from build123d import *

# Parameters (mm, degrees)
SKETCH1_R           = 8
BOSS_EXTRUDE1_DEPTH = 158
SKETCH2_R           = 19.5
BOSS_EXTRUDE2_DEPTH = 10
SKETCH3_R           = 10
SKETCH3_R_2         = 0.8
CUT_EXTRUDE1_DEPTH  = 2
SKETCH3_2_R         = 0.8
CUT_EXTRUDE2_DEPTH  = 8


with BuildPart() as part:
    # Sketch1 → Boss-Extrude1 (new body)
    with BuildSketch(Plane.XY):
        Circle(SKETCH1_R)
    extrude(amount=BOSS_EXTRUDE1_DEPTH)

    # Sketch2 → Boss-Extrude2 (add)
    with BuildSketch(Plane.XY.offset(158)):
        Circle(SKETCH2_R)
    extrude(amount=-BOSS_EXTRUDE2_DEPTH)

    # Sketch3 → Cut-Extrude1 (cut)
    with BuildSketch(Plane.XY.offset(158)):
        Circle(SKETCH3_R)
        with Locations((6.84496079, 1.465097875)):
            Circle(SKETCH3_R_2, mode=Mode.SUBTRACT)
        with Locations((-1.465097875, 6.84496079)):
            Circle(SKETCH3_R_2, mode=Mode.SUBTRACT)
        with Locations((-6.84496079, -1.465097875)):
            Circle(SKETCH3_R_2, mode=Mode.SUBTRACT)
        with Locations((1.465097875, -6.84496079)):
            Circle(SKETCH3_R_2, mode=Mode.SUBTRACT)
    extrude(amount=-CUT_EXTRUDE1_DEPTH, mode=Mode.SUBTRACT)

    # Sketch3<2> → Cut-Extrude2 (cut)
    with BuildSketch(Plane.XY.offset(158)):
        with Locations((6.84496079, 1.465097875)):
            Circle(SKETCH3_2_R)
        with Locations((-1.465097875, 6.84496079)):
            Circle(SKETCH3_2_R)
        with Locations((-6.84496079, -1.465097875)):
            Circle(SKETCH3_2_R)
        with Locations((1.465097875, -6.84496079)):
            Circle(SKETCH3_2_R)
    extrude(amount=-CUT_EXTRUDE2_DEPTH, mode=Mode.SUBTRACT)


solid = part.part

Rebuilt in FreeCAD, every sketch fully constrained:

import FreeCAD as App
import Part
import Sketcher

V = App.Vector

doc = App.newDocument("Part")
params = doc.addObject("Spreadsheet::Sheet", "Params")
for row, (alias, value) in enumerate([
    ("sketch1_diameter", "16 mm"),
    ("pad1_length", "158 mm"),
    ("sketch2_diameter", "39 mm"),
    ("pad2_length", "10 mm"),
    ("sketch3_diameter", "20 mm"),
    ("sketch3_diameter2", "1.6 mm"),
    ("pocket1_length", "2 mm"),
    ("sketch4_diameter", "1.6 mm"),
    ("pocket2_length", "8 mm"),
], start=1):
    params.set(f"A{row}", alias)
    params.set(f"B{row}", "=" + value)
    params.setAlias(f"B{row}", alias)

body = doc.addObject("PartDesign::Body", "Body")

# Sketch on XY plane
sketch1 = body.newObject("Sketcher::SketchObject", "Sketch")
sketch1.AttachmentSupport = (doc.getObject("XY_Plane"), [""])
sketch1.MapMode = "FlatFace"
sketch1.addGeometry(Part.Circle(V(0, 0, 0), V(0, 0, 1), 8), False)
sketch1.addConstraint([
    Sketcher.Constraint("Coincident", 0, 3, -1, 1),
    Sketcher.Constraint("Diameter", 0, 16.0),
])
sketch1.setExpression("Constraints[1]", "Params.sketch1_diameter")
pad1 = body.newObject("PartDesign::Pad", "Pad")
pad1.Profile = sketch1
pad1.setExpression("Length", "Params.pad1_length")

# Sketch on XY plane
sketch2 = body.newObject("Sketcher::SketchObject", "Sketch001")
sketch2.AttachmentSupport = (doc.getObject("XY_Plane"), [""])
sketch2.MapMode = "FlatFace"
sketch2.AttachmentOffset = App.Placement(V(0, 0, 158), App.Rotation())
sketch2.addGeometry(Part.Circle(V(0, 0, 0), V(0, 0, 1), 20), False)
sketch2.addConstraint([
    Sketcher.Constraint("Coincident", 0, 3, -1, 1),
    Sketcher.Constraint("Diameter", 0, 39.0),
])
sketch2.setExpression("Constraints[1]", "Params.sketch2_diameter")
pad2 = body.newObject("PartDesign::Pad", "Pad001")
pad2.Profile = sketch2
pad2.setExpression("Length", "Params.pad2_length")
pad2.Reversed = True

# Sketch on XY plane
sketch3 = body.newObject("Sketcher::SketchObject", "Sketch002")
sketch3.AttachmentSupport = (doc.getObject("XY_Plane"), [""])
sketch3.MapMode = "FlatFace"
sketch3.AttachmentOffset = App.Placement(V(0, 0, 158), App.Rotation())
sketch3.addGeometry([
    Part.Circle(V(0, 0, 0), V(0, 0, 1), 10),  # 0
    Part.Circle(V(-6.8, -1.5, 0), V(0, 0, 1), 0.8),  # 1
    Part.Circle(V(1.5, -6.8, 0), V(0, 0, 1), 0.8),  # 2
    Part.Circle(V(-1.5, 6.8, 0), V(0, 0, 1), 0.8),  # 3
    Part.Circle(V(6.8, 1.5, 0), V(0, 0, 1), 0.8),  # 4
], False)
sketch3.addConstraint([
    Sketcher.Constraint("Coincident", 0, 3, -1, 1),
    Sketcher.Constraint("Equal", 1, 2),
    Sketcher.Constraint("Equal", 2, 3),
    Sketcher.Constraint("Equal", 3, 4),
    Sketcher.Constraint("Symmetric", 2, 3, 3, 3, -1, 1),
    Sketcher.Constraint("Symmetric", 1, 3, 4, 3, -1, 1),
    Sketcher.Constraint("Diameter", 0, 20.0),
    Sketcher.Constraint("Diameter", 1, 1.6),
    Sketcher.Constraint("DistanceX", 1, 3, -1, 1, 6.844961),
    Sketcher.Constraint("DistanceY", 2, 3, -1, 1, 6.844961),
    Sketcher.Constraint("DistanceX", 1, 3, 2, 3, 8.310059),
    Sketcher.Constraint("DistanceY", 1, 3, 3, 3, 8.310059),
])
sketch3.setExpression("Constraints[6]", "Params.sketch3_diameter")
sketch3.setExpression("Constraints[7]", "Params.sketch3_diameter2")
pocket1 = body.newObject("PartDesign::Pocket", "Pocket")
pocket1.Profile = sketch3
pocket1.setExpression("Length", "Params.pocket1_length")

# Sketch on XY plane
sketch4 = body.newObject("Sketcher::SketchObject", "Sketch003")
sketch4.AttachmentSupport = (doc.getObject("XY_Plane"), [""])
sketch4.MapMode = "FlatFace"
sketch4.AttachmentOffset = App.Placement(V(0, 0, 158), App.Rotation())
sketch4.addGeometry([
    Part.Circle(V(6.8, 1.5, 0), V(0, 0, 1), 0.8),
    Part.Circle(V(-1.5, 6.8, 0), V(0, 0, 1), 0.8),
    Part.Circle(V(-6.8, -1.5, 0), V(0, 0, 1), 0.8),
    Part.Circle(V(1.5, -6.8, 0), V(0, 0, 1), 0.8),
], False)
sketch4.addConstraint([
    Sketcher.Constraint("Equal", 0, 1),
    Sketcher.Constraint("Equal", 1, 2),
    Sketcher.Constraint("Equal", 2, 3),
    Sketcher.Constraint("Symmetric", 0, 3, 2, 3, -1, 1),
    Sketcher.Constraint("Symmetric", 1, 3, 3, 3, -1, 1),
    Sketcher.Constraint("Diameter", 0, 1.6),
    Sketcher.Constraint("DistanceX", -1, 1, 0, 3, 6.844961),
    Sketcher.Constraint("DistanceY", -1, 1, 1, 3, 6.844961),
    Sketcher.Constraint("DistanceX", 1, 3, 0, 3, 8.310059),
    Sketcher.Constraint("DistanceY", 2, 3, 1, 3, 8.310059),
])
sketch4.setExpression("Constraints[5]", "Params.sketch4_diameter")
pocket2 = body.newObject("PartDesign::Pocket", "Pocket001")
pocket2.Profile = sketch4
pocket2.setExpression("Length", "Params.pocket2_length")

doc.recompute()
